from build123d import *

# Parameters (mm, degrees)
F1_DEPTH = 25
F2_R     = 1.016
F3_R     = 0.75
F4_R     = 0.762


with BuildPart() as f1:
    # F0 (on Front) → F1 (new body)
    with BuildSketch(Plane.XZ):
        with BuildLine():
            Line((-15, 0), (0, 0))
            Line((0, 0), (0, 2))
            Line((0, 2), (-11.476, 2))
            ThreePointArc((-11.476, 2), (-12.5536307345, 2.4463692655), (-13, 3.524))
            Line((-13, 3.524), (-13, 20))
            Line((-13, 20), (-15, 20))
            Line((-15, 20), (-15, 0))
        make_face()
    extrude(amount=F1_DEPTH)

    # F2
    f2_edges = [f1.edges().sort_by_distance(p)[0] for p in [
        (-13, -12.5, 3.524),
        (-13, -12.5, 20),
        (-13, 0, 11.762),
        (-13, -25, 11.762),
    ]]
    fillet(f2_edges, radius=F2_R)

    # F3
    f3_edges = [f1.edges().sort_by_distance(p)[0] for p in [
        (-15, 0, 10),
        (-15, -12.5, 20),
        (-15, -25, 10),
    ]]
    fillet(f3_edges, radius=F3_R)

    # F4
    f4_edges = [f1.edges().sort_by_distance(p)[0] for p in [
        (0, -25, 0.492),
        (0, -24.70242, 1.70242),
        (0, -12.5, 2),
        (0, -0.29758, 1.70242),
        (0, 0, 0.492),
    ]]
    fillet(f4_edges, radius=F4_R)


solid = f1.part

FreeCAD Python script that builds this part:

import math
import FreeCAD as App
import Part
import Sketcher


def edges_at(feature, points):
    """Names of the edges that pass closest to the given points."""
    edges = feature.Shape.Edges
    near = lambda p: min(range(len(edges)), key=lambda i: edges[i].distToShape(Part.Vertex(*p))[0])
    return sorted({f"Edge{near(p) + 1}" for p in points})

doc = App.newDocument("Part")
body = doc.addObject("PartDesign::Body", "Body")

# Sketch on XZ plane
sketch1 = doc.addObject("Sketcher::SketchObject", "Sketch")
body.addObject(sketch1)
sketch1.AttachmentSupport = (doc.XZ_Plane, [""])
sketch1.MapMode = "FlatFace"
sketch1.addGeometry(Part.LineSegment(App.Vector(-15, 0, 0), App.Vector(0, 0, 0)), False)
sketch1.addGeometry(Part.LineSegment(App.Vector(0, 0, 0), App.Vector(0, 2, 0)), False)
sketch1.addGeometry(Part.LineSegment(App.Vector(0, 2, 0), App.Vector(-11.5, 2, 0)), False)
sketch1.addGeometry(Part.ArcOfCircle(Part.Circle(App.Vector(-11.5, 3.5, 0), App.Vector(0, 0, 1), 1.5), math.radians(180), math.radians(270)), False)
sketch1.addGeometry(Part.LineSegment(App.Vector(-13, 3.5, 0), App.Vector(-13, 20, 0)), False)
sketch1.addGeometry(Part.LineSegment(App.Vector(-13, 20, 0), App.Vector(-15, 20, 0)), False)
sketch1.addGeometry(Part.LineSegment(App.Vector(-15, 20, 0), App.Vector(-15, 0, 0)), False)
sketch1.addConstraint(Sketcher.Constraint("Coincident", 0, 2, 1, 1))
sketch1.addConstraint(Sketcher.Constraint("Coincident", 1, 2, 2, 1))
sketch1.addConstraint(Sketcher.Constraint("Tangent", 2, 2, 3, 2))
sketch1.addConstraint(Sketcher.Constraint("Tangent", 3, 1, 4, 1))
sketch1.addConstraint(Sketcher.Constraint("Coincident", 4, 2, 5, 1))
sketch1.addConstraint(Sketcher.Constraint("Coincident", 5, 2, 6, 1))
sketch1.addConstraint(Sketcher.Constraint("Coincident", 6, 2, 0, 1))
sketch1.addConstraint(Sketcher.Constraint("Horizontal", 0))
sketch1.addConstraint(Sketcher.Constraint("Vertical", 1))
sketch1.addConstraint(Sketcher.Constraint("Horizontal", 2))
sketch1.addConstraint(Sketcher.Constraint("Vertical", 4))
sketch1.addConstraint(Sketcher.Constraint("Horizontal", 5))
sketch1.addConstraint(Sketcher.Constraint("Vertical", 6))
sketch1.addConstraint(Sketcher.Constraint("Coincident", 0, 2, -1, 1))
sketch1.addConstraint(Sketcher.Constraint("Equal", 5, 1))
sketch1.addConstraint(Sketcher.Constraint("DistanceX", 0, 1, 0, 2, 15.0))
sketch1.addConstraint(Sketcher.Constraint("DistanceX", 5, 2, 5, 1, 2.0))
sketch1.addConstraint(Sketcher.Constraint("DistanceY", 6, 2, 6, 1, 20.0))
sketch1.addConstraint(Sketcher.Constraint("Radius", 3, 1.524))
pad1 = doc.addObject("PartDesign::Pad", "Pad")
body.addObject(pad1)
pad1.Profile = sketch1
pad1.Length = 25
doc.recompute()

fillet = doc.addObject("PartDesign::Fillet", "Fillet")
body.addObject(fillet)
fillet.Base = (pad1, edges_at(pad1, [
    (-13, -12.5, 3.524),
    (-13, -12.5, 20),
    (-13, 0, 11.762),
    (-13, -25, 11.762),
]))
fillet.Radius = 1.016
doc.recompute()

fillet2 = doc.addObject("PartDesign::Fillet", "Fillet001")
body.addObject(fillet2)
fillet2.Base = (fillet, edges_at(fillet, [(-15, 0, 10), (-15, -12.5, 20), (-15, -25, 10)]))
fillet2.Radius = 0.75
doc.recompute()

fillet3 = doc.addObject("PartDesign::Fillet", "Fillet002")
body.addObject(fillet3)
fillet3.Base = (fillet2, edges_at(fillet2, [
    (0, -25, 0.492),
    (0, -24.702, 1.702),
    (0, -12.5, 2),
    (0, -0.298, 1.702),
    (0, 0, 0.492),
]))
fillet3.Radius = 0.762

doc.recompute()
